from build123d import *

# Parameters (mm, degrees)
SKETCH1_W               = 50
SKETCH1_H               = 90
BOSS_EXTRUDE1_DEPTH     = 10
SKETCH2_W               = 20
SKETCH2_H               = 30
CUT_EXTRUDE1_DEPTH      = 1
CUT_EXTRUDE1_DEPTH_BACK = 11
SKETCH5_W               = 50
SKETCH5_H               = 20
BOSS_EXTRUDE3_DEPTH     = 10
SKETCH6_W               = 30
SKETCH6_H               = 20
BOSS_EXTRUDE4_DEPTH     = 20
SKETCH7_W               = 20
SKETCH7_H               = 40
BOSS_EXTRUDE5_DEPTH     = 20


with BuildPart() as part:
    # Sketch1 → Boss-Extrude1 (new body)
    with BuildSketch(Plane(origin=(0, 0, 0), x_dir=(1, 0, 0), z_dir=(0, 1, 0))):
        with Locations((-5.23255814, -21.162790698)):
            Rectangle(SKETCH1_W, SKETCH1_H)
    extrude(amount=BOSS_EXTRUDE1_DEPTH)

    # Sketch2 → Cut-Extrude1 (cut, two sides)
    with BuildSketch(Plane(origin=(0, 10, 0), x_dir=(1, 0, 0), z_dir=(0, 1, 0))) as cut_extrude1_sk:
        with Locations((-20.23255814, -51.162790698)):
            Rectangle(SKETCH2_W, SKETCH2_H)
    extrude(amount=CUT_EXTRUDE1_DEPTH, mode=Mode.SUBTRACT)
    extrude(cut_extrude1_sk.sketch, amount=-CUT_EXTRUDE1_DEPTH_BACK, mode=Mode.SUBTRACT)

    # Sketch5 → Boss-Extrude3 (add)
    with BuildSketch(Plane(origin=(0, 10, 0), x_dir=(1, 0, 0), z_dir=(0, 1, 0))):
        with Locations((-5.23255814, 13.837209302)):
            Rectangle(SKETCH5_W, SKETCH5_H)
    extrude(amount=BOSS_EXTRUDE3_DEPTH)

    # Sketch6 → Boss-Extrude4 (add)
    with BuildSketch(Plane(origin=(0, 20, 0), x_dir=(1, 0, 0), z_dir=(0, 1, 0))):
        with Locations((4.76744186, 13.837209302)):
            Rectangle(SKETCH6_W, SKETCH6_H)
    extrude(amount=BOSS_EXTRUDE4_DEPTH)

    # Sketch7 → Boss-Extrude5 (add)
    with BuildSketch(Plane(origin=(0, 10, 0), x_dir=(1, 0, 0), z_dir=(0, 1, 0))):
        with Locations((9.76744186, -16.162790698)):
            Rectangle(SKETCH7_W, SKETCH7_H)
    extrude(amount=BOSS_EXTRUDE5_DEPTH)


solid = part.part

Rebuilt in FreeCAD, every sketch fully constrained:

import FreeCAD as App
import Part
import Sketcher

V = App.Vector
Q = App.Units.Quantity

doc = App.newDocument("Part")
body = doc.addObject("PartDesign::Body", "Body")

sketch1 = body.newObject("Sketcher::SketchObject", "Sketch")
sketch1.AttachmentSupport = (doc.getObject("XZ_Plane"), [""])
sketch1.MapMode = "FlatFace"
sketch1.addGeometry([
    Part.LineSegment(V(-30.232558, -23.837209, 0), V(-30.232558, 66.162791, 0)),
    Part.LineSegment(V(-30.232558, 66.162791, 0), V(19.767442, 66.162791, 0)),
    Part.LineSegment(V(19.767442, 66.162791, 0), V(19.767442, -23.837209, 0)),
    Part.LineSegment(V(19.767442, -23.837209, 0), V(-30.232558, -23.837209, 0)),
], False)
sketch1.addConstraint([
    Sketcher.Constraint("Coincident", 0, 2, 1, 1),
    Sketcher.Constraint("Coincident", 1, 2, 2, 1),
    Sketcher.Constraint("Coincident", 2, 2, 3, 1),
    Sketcher.Constraint("Coincident", 3, 2, 0, 1),
    Sketcher.Constraint("Vertical", 0),
    Sketcher.Constraint("Horizontal", 1),
    Sketcher.Constraint("Vertical", 2),
    Sketcher.Constraint("Horizontal", 3),
    Sketcher.Constraint("DistanceX", 1, 1, 1, 2, Q("50 mm")),
    Sketcher.Constraint("DistanceY", 0, 1, 0, 2, Q("90 mm")),
    Sketcher.Constraint("DistanceX", 0, 2, -1, 1, Q("30.232558 mm")),
    Sketcher.Constraint("DistanceY", -1, 1, 0, 2, Q("66.162791 mm")),
])
pad1 = body.newObject("PartDesign::Pad", "Pad")
pad1.Profile = sketch1
pad1.Length = 10
pad1.Reversed = True

sketch2 = body.newObject("Sketcher::SketchObject", "Sketch001")
sketch2.AttachmentSupport = (doc.getObject("XZ_Plane"), [""])
sketch2.MapMode = "FlatFace"
sketch2.AttachmentOffset = App.Placement(V(0, 0, -10), App.Rotation())
sketch2.addGeometry([
    Part.LineSegment(V(-30.232558, 36.162791, 0), V(-30.232558, 66.162791, 0)),
    Part.LineSegment(V(-30.232558, 66.162791, 0), V(-10.232558, 66.162791, 0)),
    Part.LineSegment(V(-10.232558, 66.162791, 0), V(-10.232558, 36.162791, 0)),
    Part.LineSegment(V(-10.232558, 36.162791, 0), V(-30.232558, 36.162791, 0)),
], False)
sketch2.addConstraint([
    Sketcher.Constraint("Coincident", 0, 2, 1, 1),
    Sketcher.Constraint("Coincident", 1, 2, 2, 1),
    Sketcher.Constraint("Coincident", 2, 2, 3, 1),
    Sketcher.Constraint("Coincident", 3, 2, 0, 1),
    Sketcher.Constraint("Vertical", 0),
    Sketcher.Constraint("Horizontal", 1),
    Sketcher.Constraint("Vertical", 2),
    Sketcher.Constraint("Horizontal", 3),
    Sketcher.Constraint("DistanceX", 1, 1, 1, 2, Q("20 mm")),
    Sketcher.Constraint("DistanceY", 0, 1, 0, 2, Q("30 mm")),
    Sketcher.Constraint("DistanceX", 0, 2, -1, 1, Q("30.232558 mm")),
    Sketcher.Constraint("DistanceY", -1, 1, 0, 2, Q("66.162791 mm")),
])
pocket1 = body.newObject("PartDesign::Pocket", "Pocket")
pocket1.Profile = sketch2
pocket1.Type = "ThroughAll"
pocket1.Midplane = True

sketch3 = body.newObject("Sketcher::SketchObject", "Sketch002")
sketch3.AttachmentSupport = (doc.getObject("XZ_Plane"), [""])
sketch3.MapMode = "FlatFace"
sketch3.AttachmentOffset = App.Placement(V(0, 0, -10), App.Rotation())
sketch3.addGeometry([
    Part.LineSegment(V(-30.232558, -23.837209, 0), V(-30.232558, -3.837209, 0)),
    Part.LineSegment(V(-30.232558, -3.837209, 0), V(19.767442, -3.837209, 0)),
    Part.LineSegment(V(19.767442, -3.837209, 0), V(19.767442, -23.837209, 0)),
    Part.LineSegment(V(19.767442, -23.837209, 0), V(-30.232558, -23.837209, 0)),
], False)
sketch3.addConstraint([
    Sketcher.Constraint("Coincident", 0, 2, 1, 1),
    Sketcher.Constraint("Coincident", 1, 2, 2, 1),
    Sketcher.Constraint("Coincident", 2, 2, 3, 1),
    Sketcher.Constraint("Coincident", 3, 2, 0, 1),
    Sketcher.Constraint("Vertical", 0),
    Sketcher.Constraint("Horizontal", 1),
    Sketcher.Constraint("Vertical", 2),
    Sketcher.Constraint("Horizontal", 3),
    Sketcher.Constraint("DistanceX", 1, 1, 1, 2, Q("50 mm")),
    Sketcher.Constraint("DistanceY", 0, 1, 0, 2, Q("20 mm")),
    Sketcher.Constraint("DistanceX", 0, 2, -1, 1, Q("30.232558 mm")),
    Sketcher.Constraint("DistanceY", 0, 2, -1, 1, Q("3.837209 mm")),
])
pad2 = body.newObject("PartDesign::Pad", "Pad001")
pad2.Profile = sketch3
pad2.Length = 10
pad2.Reversed = True

sketch4 = body.newObject("Sketcher::SketchObject", "Sketch003")
sketch4.AttachmentSupport = (doc.getObject("XZ_Plane"), [""])
sketch4.MapMode = "FlatFace"
sketch4.AttachmentOffset = App.Placement(V(0, 0, -20), App.Rotation())
sketch4.addGeometry([
    Part.LineSegment(V(-10.232558, -23.837209, 0), V(-10.232558, -3.837209, 0)),
    Part.LineSegment(V(-10.232558, -3.837209, 0), V(19.767442, -3.837209, 0)),
    Part.LineSegment(V(19.767442, -3.837209, 0), V(19.767442, -23.837209, 0)),
    Part.LineSegment(V(19.767442, -23.837209, 0), V(-10.232558, -23.837209, 0)),
], False)
sketch4.addConstraint([
    Sketcher.Constraint("Coincident", 0, 2, 1, 1),
    Sketcher.Constraint("Coincident", 1, 2, 2, 1),
    Sketcher.Constraint("Coincident", 2, 2, 3, 1),
    Sketcher.Constraint("Coincident", 3, 2, 0, 1),
    Sketcher.Constraint("Vertical", 0),
    Sketcher.Constraint("Horizontal", 1),
    Sketcher.Constraint("Vertical", 2),
    Sketcher.Constraint("Horizontal", 3),
    Sketcher.Constraint("DistanceX", 1, 1, 1, 2, Q("30 mm")),
    Sketcher.Constraint("DistanceY", 0, 1, 0, 2, Q("20 mm")),
    Sketcher.Constraint("DistanceX", 0, 2, -1, 1, Q("10.232558 mm")),
    Sketcher.Constraint("DistanceY", 0, 2, -1, 1, Q("3.837209 mm")),
])
pad3 = body.newObject("PartDesign::Pad", "Pad002")
pad3.Profile = sketch4
pad3.Length = 20
pad3.Reversed = True

sketch5 = body.newObject("Sketcher::SketchObject", "Sketch004")
sketch5.AttachmentSupport = (doc.getObject("XZ_Plane"), [""])
sketch5.MapMode = "FlatFace"
sketch5.AttachmentOffset = App.Placement(V(0, 0, -10), App.Rotation())
sketch5.addGeometry([
    Part.LineSegment(V(-0.232558, -3.837209, 0), V(-0.232558, 36.162791, 0)),
    Part.LineSegment(V(-0.232558, 36.162791, 0), V(19.767442, 36.162791, 0)),
    Part.LineSegment(V(19.767442, 36.162791, 0), V(19.767442, -3.837209, 0)),
    Part.LineSegment(V(19.767442, -3.837209, 0), V(-0.232558, -3.837209, 0)),
], False)
sketch5.addConstraint([
    Sketcher.Constraint("Coincident", 0, 2, 1, 1),
    Sketcher.Constraint("Coincident", 1, 2, 2, 1),
    Sketcher.Constraint("Coincident", 2, 2, 3, 1),
    Sketcher.Constraint("Coincident", 3, 2, 0, 1),
    Sketcher.Constraint("Vertical", 0),
    Sketcher.Constraint("Horizontal", 1),
    Sketcher.Constraint("Vertical", 2),
    Sketcher.Constraint("Horizontal", 3),
    Sketcher.Constraint("DistanceX", 1, 1, 1, 2, Q("20 mm")),
    Sketcher.Constraint("DistanceY", 0, 1, 0, 2, Q("40 mm")),
    Sketcher.Constraint("DistanceX", 0, 2, -1, 1, Q("0.232558 mm")),
    Sketcher.Constraint("DistanceY", -1, 1, 0, 2, Q("36.162791 mm")),
])
pad4 = body.newObject("PartDesign::Pad", "Pad003")
pad4.Profile = sketch5
pad4.Length = 20
pad4.Reversed = True

doc.recompute()
